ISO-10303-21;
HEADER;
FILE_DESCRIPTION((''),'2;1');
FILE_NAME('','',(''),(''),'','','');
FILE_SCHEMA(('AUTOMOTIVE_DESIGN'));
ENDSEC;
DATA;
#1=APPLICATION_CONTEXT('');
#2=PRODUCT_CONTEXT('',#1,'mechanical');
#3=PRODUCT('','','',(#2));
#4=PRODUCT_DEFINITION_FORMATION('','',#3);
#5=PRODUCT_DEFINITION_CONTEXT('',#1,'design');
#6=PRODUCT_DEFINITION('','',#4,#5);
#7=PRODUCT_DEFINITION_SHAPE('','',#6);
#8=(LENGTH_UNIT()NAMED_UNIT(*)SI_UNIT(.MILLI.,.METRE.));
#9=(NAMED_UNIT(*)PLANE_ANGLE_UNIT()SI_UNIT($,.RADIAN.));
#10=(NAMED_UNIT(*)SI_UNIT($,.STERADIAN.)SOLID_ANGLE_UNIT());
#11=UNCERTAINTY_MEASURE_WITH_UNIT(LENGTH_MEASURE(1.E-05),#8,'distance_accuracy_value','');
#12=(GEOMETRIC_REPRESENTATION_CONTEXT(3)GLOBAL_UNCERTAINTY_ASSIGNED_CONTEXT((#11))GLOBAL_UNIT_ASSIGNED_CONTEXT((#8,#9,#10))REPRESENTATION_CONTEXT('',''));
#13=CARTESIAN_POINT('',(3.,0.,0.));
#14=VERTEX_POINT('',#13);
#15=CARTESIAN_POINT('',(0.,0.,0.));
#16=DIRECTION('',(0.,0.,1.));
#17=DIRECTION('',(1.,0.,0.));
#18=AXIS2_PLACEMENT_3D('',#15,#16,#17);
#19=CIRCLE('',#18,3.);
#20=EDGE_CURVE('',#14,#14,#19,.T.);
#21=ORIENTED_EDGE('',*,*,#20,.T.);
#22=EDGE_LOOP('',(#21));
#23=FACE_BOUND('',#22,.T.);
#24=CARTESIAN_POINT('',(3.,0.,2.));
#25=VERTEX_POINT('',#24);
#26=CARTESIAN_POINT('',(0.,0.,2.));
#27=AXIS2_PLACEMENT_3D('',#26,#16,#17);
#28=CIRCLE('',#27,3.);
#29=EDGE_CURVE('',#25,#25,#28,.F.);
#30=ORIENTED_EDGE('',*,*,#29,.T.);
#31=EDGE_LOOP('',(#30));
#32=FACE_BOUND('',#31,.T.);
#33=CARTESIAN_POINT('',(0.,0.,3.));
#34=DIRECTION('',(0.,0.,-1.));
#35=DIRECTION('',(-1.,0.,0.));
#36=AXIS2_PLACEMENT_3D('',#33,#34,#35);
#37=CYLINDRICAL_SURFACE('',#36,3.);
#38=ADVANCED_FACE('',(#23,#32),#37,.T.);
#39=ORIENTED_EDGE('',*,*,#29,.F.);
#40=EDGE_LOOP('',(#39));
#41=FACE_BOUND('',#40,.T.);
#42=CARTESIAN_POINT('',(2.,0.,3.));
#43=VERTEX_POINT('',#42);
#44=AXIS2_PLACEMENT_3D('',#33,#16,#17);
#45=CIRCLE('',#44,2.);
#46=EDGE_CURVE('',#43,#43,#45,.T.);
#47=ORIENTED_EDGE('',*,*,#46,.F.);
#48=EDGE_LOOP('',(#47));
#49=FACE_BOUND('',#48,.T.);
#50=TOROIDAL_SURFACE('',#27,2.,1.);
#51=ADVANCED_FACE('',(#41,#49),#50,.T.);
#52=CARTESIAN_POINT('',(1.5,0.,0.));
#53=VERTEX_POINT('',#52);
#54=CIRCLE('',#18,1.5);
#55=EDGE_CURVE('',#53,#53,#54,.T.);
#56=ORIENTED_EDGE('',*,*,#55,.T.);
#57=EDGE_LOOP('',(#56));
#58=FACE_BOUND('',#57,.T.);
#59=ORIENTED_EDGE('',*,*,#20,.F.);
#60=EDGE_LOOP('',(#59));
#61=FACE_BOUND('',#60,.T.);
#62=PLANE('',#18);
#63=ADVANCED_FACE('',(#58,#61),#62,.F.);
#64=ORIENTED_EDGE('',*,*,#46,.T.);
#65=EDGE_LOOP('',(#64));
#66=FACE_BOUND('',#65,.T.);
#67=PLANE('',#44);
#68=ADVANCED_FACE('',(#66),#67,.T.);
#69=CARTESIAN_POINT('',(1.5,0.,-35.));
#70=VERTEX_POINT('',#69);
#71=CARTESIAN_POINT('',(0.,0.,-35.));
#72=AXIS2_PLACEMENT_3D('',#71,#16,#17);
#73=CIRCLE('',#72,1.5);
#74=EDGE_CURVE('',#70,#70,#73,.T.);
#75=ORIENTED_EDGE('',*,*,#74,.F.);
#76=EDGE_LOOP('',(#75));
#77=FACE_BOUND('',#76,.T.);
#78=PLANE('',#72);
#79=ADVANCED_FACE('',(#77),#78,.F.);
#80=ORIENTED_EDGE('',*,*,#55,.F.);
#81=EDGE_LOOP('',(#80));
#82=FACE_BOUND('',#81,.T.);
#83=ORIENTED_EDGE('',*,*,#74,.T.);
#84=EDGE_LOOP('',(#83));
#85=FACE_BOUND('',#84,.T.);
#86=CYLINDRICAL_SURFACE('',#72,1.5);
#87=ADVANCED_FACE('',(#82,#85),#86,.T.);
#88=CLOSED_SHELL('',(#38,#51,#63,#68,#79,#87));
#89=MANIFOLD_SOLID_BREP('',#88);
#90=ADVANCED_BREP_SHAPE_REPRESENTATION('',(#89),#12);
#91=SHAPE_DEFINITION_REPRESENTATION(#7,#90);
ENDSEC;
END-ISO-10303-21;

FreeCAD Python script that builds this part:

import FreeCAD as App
import Part
import Sketcher
Q = App.Units.Quantity


def edges_at(feature, points):
    """Names of the edges that pass closest to the given points."""
    edges = feature.Shape.Edges
    near = lambda p: min(range(len(edges)), key=lambda i: edges[i].distToShape(Part.Vertex(*p))[0])
    return sorted({f"Edge{near(p) + 1}" for p in points})

doc = App.newDocument("Part")
body = doc.addObject("PartDesign::Body", "Body")

# Sketch on XY plane
sketch1 = doc.addObject("Sketcher::SketchObject", "Sketch")
body.addObject(sketch1)
sketch1.AttachmentSupport = (doc.XY_Plane, [""])
sketch1.MapMode = "FlatFace"
sketch1.addGeometry(Part.Circle(App.Vector(0, 0, 0), App.Vector(0, 0, 1), 1.5), False)
sketch1.addConstraint([
    Sketcher.Constraint("Coincident", 0, 3, -1, 1),
    Sketcher.Constraint("Diameter", 0, Q("3 mm")),
])
pad1 = doc.addObject("PartDesign::Pad", "Pad")
body.addObject(pad1)
pad1.Profile = sketch1
pad1.Length = 35
pad1.Reversed = True

# Sketch on XY plane
sketch2 = doc.addObject("Sketcher::SketchObject", "Sketch001")
body.addObject(sketch2)
sketch2.AttachmentSupport = (doc.XY_Plane, [""])
sketch2.MapMode = "FlatFace"
sketch2.addGeometry(Part.Circle(App.Vector(0, 0, 0), App.Vector(0, 0, 1), 3), False)
sketch2.addConstraint([
    Sketcher.Constraint("Coincident", 0, 3, -1, 1),
    Sketcher.Constraint("Diameter", 0, Q("6 mm")),
])
pad2 = doc.addObject("PartDesign::Pad", "Pad001")
body.addObject(pad2)
pad2.Profile = sketch2
pad2.Length = 3
doc.recompute()

fillet = doc.addObject("PartDesign::Fillet", "Fillet")
body.addObject(fillet)
fillet.Base = (pad2, edges_at(pad2, [(-3, 0, 3)]))
fillet.Radius = 1

doc.recompute()
